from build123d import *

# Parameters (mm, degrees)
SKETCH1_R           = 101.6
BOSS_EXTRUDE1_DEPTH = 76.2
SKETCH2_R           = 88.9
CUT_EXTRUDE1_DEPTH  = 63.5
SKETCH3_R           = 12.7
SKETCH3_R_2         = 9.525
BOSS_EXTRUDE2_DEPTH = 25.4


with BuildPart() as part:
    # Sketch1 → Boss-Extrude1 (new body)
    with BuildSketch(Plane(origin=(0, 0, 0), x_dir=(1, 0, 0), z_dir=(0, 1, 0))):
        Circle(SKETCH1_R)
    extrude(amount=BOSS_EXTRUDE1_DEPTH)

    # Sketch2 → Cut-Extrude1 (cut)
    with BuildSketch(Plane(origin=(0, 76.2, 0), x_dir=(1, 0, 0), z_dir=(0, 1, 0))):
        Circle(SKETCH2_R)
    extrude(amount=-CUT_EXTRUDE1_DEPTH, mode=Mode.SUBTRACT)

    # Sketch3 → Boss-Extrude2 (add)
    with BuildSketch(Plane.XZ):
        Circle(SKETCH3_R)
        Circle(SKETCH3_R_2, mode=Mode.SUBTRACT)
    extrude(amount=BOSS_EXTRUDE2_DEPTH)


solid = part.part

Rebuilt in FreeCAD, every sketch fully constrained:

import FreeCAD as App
import Part
import Sketcher

V = App.Vector
Q = App.Units.Quantity

doc = App.newDocument("Part")
body = doc.addObject("PartDesign::Body", "Body")

# Sketch on XZ plane
sketch1 = body.newObject("Sketcher::SketchObject", "Sketch")
sketch1.AttachmentSupport = (doc.getObject("XZ_Plane"), [""])
sketch1.MapMode = "FlatFace"
sketch1.addGeometry(Part.Circle(V(0, 0, 0), V(0, 0, 1), 102), False)
sketch1.addConstraint([
    Sketcher.Constraint("Coincident", 0, 3, -1, 1),
    Sketcher.Constraint("Diameter", 0, Q("8 in")),
])
pad1 = body.newObject("PartDesign::Pad", "Pad")
pad1.Profile = sketch1
pad1.Length = Q("3 in")
pad1.Reversed = True

# Sketch on XZ plane
sketch2 = body.newObject("Sketcher::SketchObject", "Sketch001")
sketch2.AttachmentSupport = (doc.getObject("XZ_Plane"), [""])
sketch2.MapMode = "FlatFace"
sketch2.AttachmentOffset = App.Placement(V(0, 0, -3 * 25.4), App.Rotation())
sketch2.addGeometry(Part.Circle(V(0, 0, 0), V(0, 0, 1), 89), False)
sketch2.addConstraint([
    Sketcher.Constraint("Coincident", 0, 3, -1, 1),
    Sketcher.Constraint("Diameter", 0, Q("7 in")),
])
pocket1 = body.newObject("PartDesign::Pocket", "Pocket")
pocket1.Profile = sketch2
pocket1.Length = Q("2.5 in")
pocket1.Reversed = True

# Sketch on XZ plane
sketch3 = body.newObject("Sketcher::SketchObject", "Sketch002")
sketch3.AttachmentSupport = (doc.getObject("XZ_Plane"), [""])
sketch3.MapMode = "FlatFace"
sketch3.addGeometry([
    Part.Circle(V(0, 0, 0), V(0, 0, 1), 13),
    Part.Circle(V(0, 0, 0), V(0, 0, 1), 10),
], False)
sketch3.addConstraint([
    Sketcher.Constraint("Coincident", 0, 3, -1, 1),
    Sketcher.Constraint("Coincident", 1, 3, -1, 1),
    Sketcher.Constraint("Diameter", 0, Q("1 in")),
    Sketcher.Constraint("Diameter", 1, Q("0.75 in")),
])
pad2 = body.newObject("PartDesign::Pad", "Pad001")
pad2.Profile = sketch3
pad2.Length = Q("1 in")

doc.recompute()
